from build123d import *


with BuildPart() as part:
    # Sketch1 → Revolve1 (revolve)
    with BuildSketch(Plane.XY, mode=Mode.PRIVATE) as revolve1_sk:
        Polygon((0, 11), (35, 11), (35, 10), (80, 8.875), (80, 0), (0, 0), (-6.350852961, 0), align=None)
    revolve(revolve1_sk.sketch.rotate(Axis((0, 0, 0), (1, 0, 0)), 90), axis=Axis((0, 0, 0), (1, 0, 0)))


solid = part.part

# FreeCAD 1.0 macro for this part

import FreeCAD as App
import Part
import Sketcher
from FreeCAD import Vector
Q = App.Units.Quantity

doc = App.newDocument("Part")
body = doc.addObject("PartDesign::Body", "Body")

# Sketch on XY plane
sketch1 = doc.addObject("Sketcher::SketchObject", "Sketch")
body.addObject(sketch1)
sketch1.AttachmentSupport = (doc.XY_Plane, [""])
sketch1.MapMode = "FlatFace"
sketch1.addGeometry(Part.LineSegment(Vector(35, 11, 0), Vector(0, 11, 0)), False)
sketch1.addGeometry(Part.LineSegment(Vector(0, 11, 0), Vector(-6.4, 0, 0)), False)
sketch1.addGeometry(Part.LineSegment(Vector(-6.4, 0, 0), Vector(80, 0, 0)), False)
sketch1.addGeometry(Part.LineSegment(Vector(80, 0, 0), Vector(80, 8.9, 0)), False)
sketch1.addGeometry(Part.LineSegment(Vector(80, 8.9, 0), Vector(35, 10, 0)), False)
sketch1.addGeometry(Part.LineSegment(Vector(35, 10, 0), Vector(35, 11, 0)), False)
sketch1.addConstraint(Sketcher.Constraint("Coincident", 0, 2, 1, 1))
sketch1.addConstraint(Sketcher.Constraint("Coincident", 1, 2, 2, 1))
sketch1.addConstraint(Sketcher.Constraint("Coincident", 2, 2, 3, 1))
sketch1.addConstraint(Sketcher.Constraint("Coincident", 3, 2, 4, 1))
sketch1.addConstraint(Sketcher.Constraint("Coincident", 4, 2, 5, 1))
sketch1.addConstraint(Sketcher.Constraint("Coincident", 5, 2, 0, 1))
sketch1.addConstraint(Sketcher.Constraint("Horizontal", 0))
sketch1.addConstraint(Sketcher.Constraint("Horizontal", 2))
sketch1.addConstraint(Sketcher.Constraint("Vertical", 3))
sketch1.addConstraint(Sketcher.Constraint("Vertical", 5))
sketch1.addConstraint(Sketcher.Constraint("PointOnObject", 0, 2, -2))
sketch1.addConstraint(Sketcher.Constraint("PointOnObject", 1, 2, -1))
sketch1.addConstraint(Sketcher.Constraint("DistanceX", 0, 2, 0, 1, Q("35 mm")))
sketch1.addConstraint(Sketcher.Constraint("DistanceY", 5, 1, 5, 2, Q("1 mm")))
sketch1.addConstraint(Sketcher.Constraint("Angle", 1, Q("-120 deg")))
sketch1.addConstraint(Sketcher.Constraint("DistanceY", -1, 1, 0, 2, Q("11 mm")))
sketch1.addConstraint(Sketcher.Constraint("DistanceX", -1, 1, 2, 2, Q("80 mm")))
sketch1.addConstraint(Sketcher.Constraint("DistanceY", 3, 1, 3, 2, Q("8.875 mm")))
revolution = doc.addObject("PartDesign::Revolution", "Revolution")
body.addObject(revolution)
revolution.Profile = sketch1
revolution.ReferenceAxis = (sketch1, ["H_Axis"])
revolution.Angle = 360

doc.recompute()
